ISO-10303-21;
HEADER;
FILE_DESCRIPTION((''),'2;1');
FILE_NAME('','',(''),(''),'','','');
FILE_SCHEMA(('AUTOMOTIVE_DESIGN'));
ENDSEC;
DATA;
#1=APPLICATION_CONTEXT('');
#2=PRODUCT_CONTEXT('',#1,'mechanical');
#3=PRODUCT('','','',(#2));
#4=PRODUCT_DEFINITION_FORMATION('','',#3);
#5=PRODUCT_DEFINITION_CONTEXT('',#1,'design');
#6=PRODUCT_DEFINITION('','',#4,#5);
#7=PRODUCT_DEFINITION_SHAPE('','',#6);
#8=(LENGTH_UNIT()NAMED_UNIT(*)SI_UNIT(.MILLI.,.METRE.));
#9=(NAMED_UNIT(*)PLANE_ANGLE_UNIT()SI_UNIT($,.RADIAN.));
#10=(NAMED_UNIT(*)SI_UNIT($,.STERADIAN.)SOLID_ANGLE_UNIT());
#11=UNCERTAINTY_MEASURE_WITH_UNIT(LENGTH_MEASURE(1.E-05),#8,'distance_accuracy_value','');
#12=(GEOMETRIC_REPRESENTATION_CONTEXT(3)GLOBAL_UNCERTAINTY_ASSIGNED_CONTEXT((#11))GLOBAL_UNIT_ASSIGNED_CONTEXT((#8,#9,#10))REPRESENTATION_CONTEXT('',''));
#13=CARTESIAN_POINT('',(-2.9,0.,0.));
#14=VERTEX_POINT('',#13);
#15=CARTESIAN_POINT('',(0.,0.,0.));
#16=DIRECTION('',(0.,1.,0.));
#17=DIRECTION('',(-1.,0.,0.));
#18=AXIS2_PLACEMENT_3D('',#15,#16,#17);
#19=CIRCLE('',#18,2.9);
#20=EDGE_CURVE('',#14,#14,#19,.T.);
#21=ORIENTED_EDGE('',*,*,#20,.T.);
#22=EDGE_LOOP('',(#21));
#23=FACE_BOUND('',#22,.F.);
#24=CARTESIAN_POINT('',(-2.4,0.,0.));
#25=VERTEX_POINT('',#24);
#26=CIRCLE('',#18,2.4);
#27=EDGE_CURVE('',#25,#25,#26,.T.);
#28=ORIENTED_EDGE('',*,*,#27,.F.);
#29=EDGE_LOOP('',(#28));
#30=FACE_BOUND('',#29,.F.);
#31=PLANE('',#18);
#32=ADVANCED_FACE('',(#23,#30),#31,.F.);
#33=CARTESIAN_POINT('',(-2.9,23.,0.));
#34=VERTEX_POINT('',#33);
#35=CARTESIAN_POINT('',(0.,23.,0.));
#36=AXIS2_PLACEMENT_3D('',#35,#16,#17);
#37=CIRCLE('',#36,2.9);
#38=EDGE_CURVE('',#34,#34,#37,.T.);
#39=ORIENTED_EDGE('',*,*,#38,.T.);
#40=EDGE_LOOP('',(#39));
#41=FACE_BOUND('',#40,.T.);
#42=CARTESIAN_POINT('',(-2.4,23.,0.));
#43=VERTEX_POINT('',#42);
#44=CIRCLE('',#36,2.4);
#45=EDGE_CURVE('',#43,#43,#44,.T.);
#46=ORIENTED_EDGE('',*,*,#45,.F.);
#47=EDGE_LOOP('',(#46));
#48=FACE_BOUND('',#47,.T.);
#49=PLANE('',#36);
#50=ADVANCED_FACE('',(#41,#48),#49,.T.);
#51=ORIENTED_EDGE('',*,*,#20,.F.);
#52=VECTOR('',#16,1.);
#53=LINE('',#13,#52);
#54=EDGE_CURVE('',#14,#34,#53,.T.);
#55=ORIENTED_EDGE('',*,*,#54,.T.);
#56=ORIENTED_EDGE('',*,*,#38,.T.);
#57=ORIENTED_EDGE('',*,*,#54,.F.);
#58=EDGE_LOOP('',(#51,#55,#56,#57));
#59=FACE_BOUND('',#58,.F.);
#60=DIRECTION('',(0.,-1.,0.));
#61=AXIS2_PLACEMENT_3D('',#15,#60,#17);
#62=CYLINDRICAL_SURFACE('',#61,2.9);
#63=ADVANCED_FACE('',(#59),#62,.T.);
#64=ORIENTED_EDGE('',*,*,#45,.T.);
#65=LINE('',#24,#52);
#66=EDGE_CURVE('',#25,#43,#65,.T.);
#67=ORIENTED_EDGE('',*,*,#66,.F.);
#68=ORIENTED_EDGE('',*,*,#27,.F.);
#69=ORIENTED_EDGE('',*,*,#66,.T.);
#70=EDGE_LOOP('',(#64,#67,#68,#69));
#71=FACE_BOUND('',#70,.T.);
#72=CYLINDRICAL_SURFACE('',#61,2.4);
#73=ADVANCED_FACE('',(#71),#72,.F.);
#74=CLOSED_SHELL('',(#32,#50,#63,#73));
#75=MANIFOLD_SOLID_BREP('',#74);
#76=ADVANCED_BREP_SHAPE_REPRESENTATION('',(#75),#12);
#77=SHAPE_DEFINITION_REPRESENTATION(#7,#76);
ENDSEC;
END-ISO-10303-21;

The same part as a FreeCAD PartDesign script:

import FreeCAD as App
import Part
import Sketcher

doc = App.newDocument("Part")
params = doc.addObject("Spreadsheet::Sheet", "Params")
for row, (alias, value) in enumerate([
    ("sketch1_diameter", "5.8 mm"),
    ("sketch1_diameter2", "4.8 mm"),
    ("pad1_length", "23 mm"),
], start=1):
    params.set(f"A{row}", alias)
    params.set(f"B{row}", "=" + value)
    params.setAlias(f"B{row}", alias)

body = doc.addObject("PartDesign::Body", "Body")

sketch1 = doc.addObject("Sketcher::SketchObject", "Sketch")
body.addObject(sketch1)
sketch1.AttachmentSupport = (doc.XZ_Plane, [""])
sketch1.MapMode = "FlatFace"
sketch1.addGeometry([
    Part.Circle(App.Vector(0, 0, 0), App.Vector(0, 0, 1), 2.9),
    Part.Circle(App.Vector(0, 0, 0), App.Vector(0, 0, 1), 2.4),
], False)
sketch1.addConstraint([
    Sketcher.Constraint("Coincident", 0, 3, -1, 1),
    Sketcher.Constraint("Coincident", 1, 3, -1, 1),
    Sketcher.Constraint("Diameter", 0, 5.8),
    Sketcher.Constraint("Diameter", 1, 4.8),
])
sketch1.setExpression("Constraints[2]", "Params.sketch1_diameter")
sketch1.setExpression("Constraints[3]", "Params.sketch1_diameter2")
pad1 = doc.addObject("PartDesign::Pad", "Pad")
body.addObject(pad1)
pad1.Profile = sketch1
pad1.setExpression("Length", "Params.pad1_length")
pad1.Reversed = True

doc.recompute()
